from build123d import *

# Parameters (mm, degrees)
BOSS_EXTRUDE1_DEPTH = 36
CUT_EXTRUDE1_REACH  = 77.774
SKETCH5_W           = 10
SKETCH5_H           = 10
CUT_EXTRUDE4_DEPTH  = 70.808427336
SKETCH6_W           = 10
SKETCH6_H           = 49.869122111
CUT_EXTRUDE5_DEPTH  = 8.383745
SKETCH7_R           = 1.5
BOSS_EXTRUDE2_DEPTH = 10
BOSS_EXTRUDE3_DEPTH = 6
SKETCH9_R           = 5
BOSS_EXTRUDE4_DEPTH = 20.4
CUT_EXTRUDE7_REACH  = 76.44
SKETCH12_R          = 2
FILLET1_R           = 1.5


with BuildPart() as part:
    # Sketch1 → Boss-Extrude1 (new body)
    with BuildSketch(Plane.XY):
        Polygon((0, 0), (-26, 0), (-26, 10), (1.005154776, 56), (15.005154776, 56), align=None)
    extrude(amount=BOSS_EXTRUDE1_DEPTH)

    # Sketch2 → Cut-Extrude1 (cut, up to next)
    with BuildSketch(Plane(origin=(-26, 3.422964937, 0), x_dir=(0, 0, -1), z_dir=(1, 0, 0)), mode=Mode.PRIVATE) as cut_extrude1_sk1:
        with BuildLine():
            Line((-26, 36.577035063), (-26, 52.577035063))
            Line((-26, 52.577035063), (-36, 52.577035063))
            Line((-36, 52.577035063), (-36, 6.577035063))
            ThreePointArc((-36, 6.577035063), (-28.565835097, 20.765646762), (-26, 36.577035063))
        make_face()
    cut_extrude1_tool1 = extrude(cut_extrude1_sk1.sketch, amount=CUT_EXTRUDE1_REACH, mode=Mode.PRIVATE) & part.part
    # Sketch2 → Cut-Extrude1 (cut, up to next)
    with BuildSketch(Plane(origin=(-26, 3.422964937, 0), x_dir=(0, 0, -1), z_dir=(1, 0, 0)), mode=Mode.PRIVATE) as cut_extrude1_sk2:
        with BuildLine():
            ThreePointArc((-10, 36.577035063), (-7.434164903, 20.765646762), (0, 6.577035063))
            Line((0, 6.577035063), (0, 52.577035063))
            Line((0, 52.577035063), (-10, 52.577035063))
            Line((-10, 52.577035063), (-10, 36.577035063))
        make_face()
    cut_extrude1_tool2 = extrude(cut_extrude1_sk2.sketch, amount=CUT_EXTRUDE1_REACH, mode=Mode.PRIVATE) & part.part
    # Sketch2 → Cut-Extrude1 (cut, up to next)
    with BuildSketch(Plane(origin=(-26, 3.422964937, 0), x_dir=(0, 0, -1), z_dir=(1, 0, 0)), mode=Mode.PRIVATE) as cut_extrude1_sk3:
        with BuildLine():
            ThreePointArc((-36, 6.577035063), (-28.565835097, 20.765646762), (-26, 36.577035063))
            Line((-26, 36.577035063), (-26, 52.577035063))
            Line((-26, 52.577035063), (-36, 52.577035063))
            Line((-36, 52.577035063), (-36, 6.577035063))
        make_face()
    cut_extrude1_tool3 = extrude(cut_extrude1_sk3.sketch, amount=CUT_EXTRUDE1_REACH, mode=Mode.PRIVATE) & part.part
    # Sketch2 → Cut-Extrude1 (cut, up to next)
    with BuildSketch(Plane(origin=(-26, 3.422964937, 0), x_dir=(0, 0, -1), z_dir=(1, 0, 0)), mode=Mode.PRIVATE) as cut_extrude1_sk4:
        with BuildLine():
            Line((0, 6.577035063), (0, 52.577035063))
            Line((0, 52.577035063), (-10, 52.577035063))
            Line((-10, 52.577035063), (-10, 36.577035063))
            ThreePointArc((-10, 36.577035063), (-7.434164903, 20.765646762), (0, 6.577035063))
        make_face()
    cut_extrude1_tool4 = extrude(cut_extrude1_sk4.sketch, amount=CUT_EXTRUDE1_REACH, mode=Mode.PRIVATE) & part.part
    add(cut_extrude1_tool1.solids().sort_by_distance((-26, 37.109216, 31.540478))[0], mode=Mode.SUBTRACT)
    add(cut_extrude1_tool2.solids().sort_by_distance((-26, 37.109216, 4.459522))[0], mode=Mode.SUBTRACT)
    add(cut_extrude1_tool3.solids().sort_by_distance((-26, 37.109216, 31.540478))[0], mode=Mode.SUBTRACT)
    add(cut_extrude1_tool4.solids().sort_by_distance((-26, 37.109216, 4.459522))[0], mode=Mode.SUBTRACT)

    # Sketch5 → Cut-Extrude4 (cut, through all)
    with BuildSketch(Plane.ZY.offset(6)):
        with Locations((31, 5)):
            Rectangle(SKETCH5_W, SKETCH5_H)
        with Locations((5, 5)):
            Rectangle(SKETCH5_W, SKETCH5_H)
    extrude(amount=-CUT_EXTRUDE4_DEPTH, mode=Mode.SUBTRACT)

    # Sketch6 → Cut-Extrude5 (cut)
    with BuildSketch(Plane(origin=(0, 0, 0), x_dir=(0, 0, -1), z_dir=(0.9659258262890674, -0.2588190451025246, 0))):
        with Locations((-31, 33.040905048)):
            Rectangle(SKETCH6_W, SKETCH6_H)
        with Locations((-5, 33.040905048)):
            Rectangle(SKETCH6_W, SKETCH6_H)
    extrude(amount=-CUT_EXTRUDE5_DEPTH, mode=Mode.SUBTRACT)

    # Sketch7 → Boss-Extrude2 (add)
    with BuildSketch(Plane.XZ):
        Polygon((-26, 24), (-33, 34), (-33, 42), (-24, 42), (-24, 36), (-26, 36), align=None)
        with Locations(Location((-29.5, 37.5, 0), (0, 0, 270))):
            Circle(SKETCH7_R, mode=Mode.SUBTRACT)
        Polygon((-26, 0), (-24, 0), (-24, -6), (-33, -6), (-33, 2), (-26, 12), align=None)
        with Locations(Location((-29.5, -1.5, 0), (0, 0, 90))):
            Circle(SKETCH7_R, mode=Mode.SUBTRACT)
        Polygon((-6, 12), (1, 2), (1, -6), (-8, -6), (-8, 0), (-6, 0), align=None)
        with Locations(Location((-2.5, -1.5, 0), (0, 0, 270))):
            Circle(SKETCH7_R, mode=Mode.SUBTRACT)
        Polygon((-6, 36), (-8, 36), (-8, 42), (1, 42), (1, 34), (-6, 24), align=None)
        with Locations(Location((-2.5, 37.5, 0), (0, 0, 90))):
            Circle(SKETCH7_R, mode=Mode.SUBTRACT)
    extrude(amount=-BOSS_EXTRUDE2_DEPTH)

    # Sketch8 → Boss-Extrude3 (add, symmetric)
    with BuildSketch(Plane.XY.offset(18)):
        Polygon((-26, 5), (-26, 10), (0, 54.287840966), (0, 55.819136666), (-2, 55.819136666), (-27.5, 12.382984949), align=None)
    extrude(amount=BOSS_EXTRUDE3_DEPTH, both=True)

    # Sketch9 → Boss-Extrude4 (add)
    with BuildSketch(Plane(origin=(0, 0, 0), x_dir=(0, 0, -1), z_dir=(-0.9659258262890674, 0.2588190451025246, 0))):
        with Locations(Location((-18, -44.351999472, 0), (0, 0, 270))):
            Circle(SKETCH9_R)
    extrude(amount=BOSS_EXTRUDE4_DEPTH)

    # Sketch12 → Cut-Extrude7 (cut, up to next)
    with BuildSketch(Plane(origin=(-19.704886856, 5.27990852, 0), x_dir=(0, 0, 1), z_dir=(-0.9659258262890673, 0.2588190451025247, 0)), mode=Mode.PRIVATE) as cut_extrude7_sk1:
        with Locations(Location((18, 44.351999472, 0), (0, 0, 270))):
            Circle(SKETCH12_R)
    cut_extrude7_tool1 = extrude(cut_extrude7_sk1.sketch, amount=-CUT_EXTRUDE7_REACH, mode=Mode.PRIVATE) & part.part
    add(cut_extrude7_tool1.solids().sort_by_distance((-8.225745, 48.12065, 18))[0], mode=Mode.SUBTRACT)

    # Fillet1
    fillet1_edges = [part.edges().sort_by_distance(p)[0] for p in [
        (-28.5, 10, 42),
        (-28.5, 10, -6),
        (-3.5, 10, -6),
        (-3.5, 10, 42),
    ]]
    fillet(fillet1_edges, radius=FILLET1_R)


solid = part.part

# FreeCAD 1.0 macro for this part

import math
import FreeCAD as App
import Part
import Sketcher
Q = App.Units.Quantity


def edges_at(feature, points):
    """Names of the edges that pass closest to the given points."""
    edges = feature.Shape.Edges
    near = lambda p: min(range(len(edges)), key=lambda i: edges[i].distToShape(Part.Vertex(*p))[0])
    return sorted({f"Edge{near(p) + 1}" for p in points})

doc = App.newDocument("Part")
body = doc.addObject("PartDesign::Body", "Body")

# Sketch on XY plane
sketch1 = doc.addObject("Sketcher::SketchObject", "Sketch")
body.addObject(sketch1)
sketch1.AttachmentSupport = (doc.XY_Plane, [""])
sketch1.MapMode = "FlatFace"
sketch1.addGeometry([
    Part.LineSegment(App.Vector(-26, 0, 0), App.Vector(0, 0, 0)),  # 0
    Part.LineSegment(App.Vector(0, 0, 0), App.Vector(15, 56, 0)),  # 1
    Part.LineSegment(App.Vector(15, 56, 0), App.Vector(1, 56, 0)),  # 2
    Part.LineSegment(App.Vector(1, 56, 0), App.Vector(-26, 10, 0)),  # 3
    Part.LineSegment(App.Vector(-26, 10, 0), App.Vector(-26, 0, 0)),  # 4
], False)
sketch1.addConstraint([
    Sketcher.Constraint("Coincident", 0, 2, 1, 1),
    Sketcher.Constraint("Coincident", 1, 2, 2, 1),
    Sketcher.Constraint("Coincident", 2, 2, 3, 1),
    Sketcher.Constraint("Coincident", 3, 2, 4, 1),
    Sketcher.Constraint("Coincident", 4, 2, 0, 1),
    Sketcher.Constraint("Horizontal", 0),
    Sketcher.Constraint("Horizontal", 2),
    Sketcher.Constraint("Vertical", 4),
    Sketcher.Constraint("Coincident", 0, 2, -1, 1),
    Sketcher.Constraint("DistanceX", 0, 1, 0, 2, Q("26 mm")),
    Sketcher.Constraint("DistanceX", 2, 2, 2, 1, Q("14 mm")),
    Sketcher.Constraint("DistanceY", 4, 2, 4, 1, Q("10 mm")),
    Sketcher.Constraint("Angle", 1, Q("75 deg")),
    Sketcher.Constraint("DistanceY", -1, 1, 1, 2, Q("56 mm")),
])
pad1 = doc.addObject("PartDesign::Pad", "Pad")
body.addObject(pad1)
pad1.Profile = sketch1
pad1.Length = 36

# Sketch on YZ plane
sketch2 = doc.addObject("Sketcher::SketchObject", "Sketch001")
body.addObject(sketch2)
sketch2.AttachmentSupport = (doc.YZ_Plane, [""])
sketch2.MapMode = "FlatFace"
sketch2.AttachmentOffset = App.Placement(App.Vector(0, 0, -26), App.Rotation())
sketch2.addGeometry([
    Part.LineSegment(App.Vector(40, 26, 0), App.Vector(56, 26, 0)),
    Part.LineSegment(App.Vector(56, 26, 0), App.Vector(56, 36, 0)),
    Part.LineSegment(App.Vector(56, 36, 0), App.Vector(10, 36, 0)),
    Part.ArcOfCircle(Part.Circle(App.Vector(40, 76, 0), App.Vector(0, 0, 1), 50), math.radians(-127), math.radians(-90)),
], False)
sketch2.addConstraint([
    Sketcher.Constraint("Coincident", 0, 2, 1, 1),
    Sketcher.Constraint("Coincident", 1, 2, 2, 1),
    Sketcher.Constraint("Coincident", 2, 2, 3, 1),
    Sketcher.Constraint("Tangent", 3, 2, 0, 1),
    Sketcher.Constraint("Horizontal", 0),
    Sketcher.Constraint("Vertical", 1),
    Sketcher.Constraint("Horizontal", 2),
    Sketcher.Constraint("Radius", 3, Q("50 mm")),
    Sketcher.Constraint("DistanceX", 0, 1, 0, 2, Q("16 mm")),
    Sketcher.Constraint("DistanceX", 2, 2, 2, 1, Q("46 mm")),
    Sketcher.Constraint("DistanceX", -1, 1, 3, 3, Q("40 mm")),
    Sketcher.Constraint("DistanceY", -1, 1, 3, 3, Q("76 mm")),
])
pocket1 = doc.addObject("PartDesign::Pocket", "Pocket")
body.addObject(pocket1)
pocket1.Profile = sketch2
pocket1.Length = 41.005155
pocket1.Reversed = True

# Sketch on YZ plane
sketch3 = doc.addObject("Sketcher::SketchObject", "Sketch002")
body.addObject(sketch3)
sketch3.AttachmentSupport = (doc.YZ_Plane, [""])
sketch3.MapMode = "FlatFace"
sketch3.AttachmentOffset = App.Placement(App.Vector(0, 0, -26), App.Rotation())
sketch3.addGeometry([
    Part.ArcOfCircle(Part.Circle(App.Vector(40, -40, 0), App.Vector(0, 0, 1), 50), math.radians(90), math.radians(127)),
    Part.LineSegment(App.Vector(10, 0, 0), App.Vector(56, 0, 0)),
    Part.LineSegment(App.Vector(56, 0, 0), App.Vector(56, 10, 0)),
    Part.LineSegment(App.Vector(56, 10, 0), App.Vector(40, 10, 0)),
], False)
sketch3.addConstraint([
    Sketcher.Constraint("Coincident", 0, 2, 1, 1),
    Sketcher.Constraint("Coincident", 1, 2, 2, 1),
    Sketcher.Constraint("Coincident", 2, 2, 3, 1),
    Sketcher.Constraint("Tangent", 3, 2, 0, 1),
    Sketcher.Constraint("Horizontal", 1),
    Sketcher.Constraint("Vertical", 2),
    Sketcher.Constraint("Horizontal", 3),
    Sketcher.Constraint("PointOnObject", 0, 2, -1),
    Sketcher.Constraint("Radius", 0, Q("50 mm")),
    Sketcher.Constraint("DistanceX", 1, 1, 1, 2, Q("46 mm")),
    Sketcher.Constraint("DistanceX", 3, 2, 3, 1, Q("16 mm")),
    Sketcher.Constraint("DistanceX", -1, 1, 0, 3, Q("40 mm")),
])
pocket2 = doc.addObject("PartDesign::Pocket", "Pocket001")
body.addObject(pocket2)
pocket2.Profile = sketch3
pocket2.Length = 41.005155
pocket2.Reversed = True

# Sketch on YZ plane
sketch4 = doc.addObject("Sketcher::SketchObject", "Sketch003")
body.addObject(sketch4)
sketch4.AttachmentSupport = (doc.YZ_Plane, [""])
sketch4.MapMode = "FlatFace"
sketch4.AttachmentOffset = App.Placement(App.Vector(0, 0, -26), App.Rotation())
sketch4.addGeometry([
    Part.ArcOfCircle(Part.Circle(App.Vector(40, 76, 0), App.Vector(0, 0, 1), 50), math.radians(-127), math.radians(-90)),
    Part.LineSegment(App.Vector(40, 26, 0), App.Vector(56, 26, 0)),
    Part.LineSegment(App.Vector(56, 26, 0), App.Vector(56, 36, 0)),
    Part.LineSegment(App.Vector(56, 36, 0), App.Vector(10, 36, 0)),
], False)
sketch4.addConstraint([
    Sketcher.Constraint("Tangent", 0, 2, 1, 1),
    Sketcher.Constraint("Coincident", 1, 2, 2, 1),
    Sketcher.Constraint("Coincident", 2, 2, 3, 1),
    Sketcher.Constraint("Coincident", 3, 2, 0, 1),
    Sketcher.Constraint("Horizontal", 1),
    Sketcher.Constraint("Vertical", 2),
    Sketcher.Constraint("Horizontal", 3),
    Sketcher.Constraint("Radius", 0, Q("50 mm")),
    Sketcher.Constraint("DistanceX", 1, 1, 1, 2, Q("16 mm")),
    Sketcher.Constraint("DistanceX", 3, 2, 3, 1, Q("46 mm")),
    Sketcher.Constraint("DistanceX", -1, 1, 0, 3, Q("40 mm")),
    Sketcher.Constraint("DistanceY", -1, 1, 0, 3, Q("76 mm")),
])
pocket3 = doc.addObject("PartDesign::Pocket", "Pocket002")
body.addObject(pocket3)
pocket3.Profile = sketch4
pocket3.Length = 41.005155
pocket3.Reversed = True

# Sketch on YZ plane
sketch5 = doc.addObject("Sketcher::SketchObject", "Sketch004")
body.addObject(sketch5)
sketch5.AttachmentSupport = (doc.YZ_Plane, [""])
sketch5.MapMode = "FlatFace"
sketch5.AttachmentOffset = App.Placement(App.Vector(0, 0, -26), App.Rotation())
sketch5.addGeometry([
    Part.LineSegment(App.Vector(10, 0, 0), App.Vector(56, 0, 0)),
    Part.LineSegment(App.Vector(56, 0, 0), App.Vector(56, 10, 0)),
    Part.LineSegment(App.Vector(56, 10, 0), App.Vector(40, 10, 0)),
    Part.ArcOfCircle(Part.Circle(App.Vector(40, -40, 0), App.Vector(0, 0, 1), 50), math.radians(90), math.radians(127)),
], False)
sketch5.addConstraint([
    Sketcher.Constraint("Coincident", 0, 2, 1, 1),
    Sketcher.Constraint("Coincident", 1, 2, 2, 1),
    Sketcher.Constraint("Tangent", 2, 2, 3, 1),
    Sketcher.Constraint("Coincident", 3, 2, 0, 1),
    Sketcher.Constraint("Horizontal", 0),
    Sketcher.Constraint("Vertical", 1),
    Sketcher.Constraint("Horizontal", 2),
    Sketcher.Constraint("PointOnObject", 0, 2, -1),
    Sketcher.Constraint("Radius", 3, Q("50 mm")),
    Sketcher.Constraint("DistanceX", 0, 1, 0, 2, Q("46 mm")),
    Sketcher.Constraint("DistanceX", 2, 2, 2, 1, Q("16 mm")),
    Sketcher.Constraint("DistanceX", -1, 1, 3, 3, Q("40 mm")),
])
pocket4 = doc.addObject("PartDesign::Pocket", "Pocket003")
body.addObject(pocket4)
pocket4.Profile = sketch5
pocket4.Length = 41.005155
pocket4.Reversed = True

# Sketch on YZ plane
sketch6 = doc.addObject("Sketcher::SketchObject", "Sketch005")
body.addObject(sketch6)
sketch6.AttachmentSupport = (doc.YZ_Plane, [""])
sketch6.MapMode = "FlatFace"
sketch6.AttachmentOffset = App.Placement(App.Vector(0, 0, -6), App.Rotation())
sketch6.addGeometry([
    Part.LineSegment(App.Vector(10, 26, 0), App.Vector(0, 26, 0)),  # 0
    Part.LineSegment(App.Vector(0, 26, 0), App.Vector(0, 36, 0)),  # 1
    Part.LineSegment(App.Vector(0, 36, 0), App.Vector(10, 36, 0)),  # 2
    Part.LineSegment(App.Vector(10, 36, 0), App.Vector(10, 26, 0)),  # 3
    Part.LineSegment(App.Vector(10, 0, 0), App.Vector(0, 0, 0)),  # 4
    Part.LineSegment(App.Vector(0, 0, 0), App.Vector(0, 10, 0)),  # 5
    Part.LineSegment(App.Vector(0, 10, 0), App.Vector(10, 10, 0)),  # 6
    Part.LineSegment(App.Vector(10, 10, 0), App.Vector(10, 0, 0)),  # 7
], False)
sketch6.addConstraint([
    Sketcher.Constraint("Coincident", 0, 2, 1, 1),
    Sketcher.Constraint("Coincident", 1, 2, 2, 1),
    Sketcher.Constraint("Coincident", 2, 2, 3, 1),
    Sketcher.Constraint("Coincident", 3, 2, 0, 1),
    Sketcher.Constraint("Coincident", 4, 2, 5, 1),
    Sketcher.Constraint("Coincident", 5, 2, 6, 1),
    Sketcher.Constraint("Coincident", 6, 2, 7, 1),
    Sketcher.Constraint("Coincident", 7, 2, 4, 1),
    Sketcher.Constraint("Horizontal", 0),
    Sketcher.Constraint("Vertical", 1),
    Sketcher.Constraint("Horizontal", 2),
    Sketcher.Constraint("Vertical", 3),
    Sketcher.Constraint("Horizontal", 4),
    Sketcher.Constraint("Vertical", 5),
    Sketcher.Constraint("Horizontal", 6),
    Sketcher.Constraint("Vertical", 7),
    Sketcher.Constraint("Coincident", 4, 2, -1, 1),
    Sketcher.Constraint("PointOnObject", 0, 2, -2),
    Sketcher.Constraint("Vertical", 3, 2, 6, 2),
    Sketcher.Constraint("Equal", 6, 1),
    Sketcher.Constraint("Equal", 3, 5),
    Sketcher.Constraint("DistanceX", 0, 2, 0, 1, Q("10 mm")),
    Sketcher.Constraint("DistanceY", -1, 1, 0, 2, Q("26 mm")),
])
pocket5 = doc.addObject("PartDesign::Pocket", "Pocket004")
body.addObject(pocket5)
pocket5.Profile = sketch6
pocket5.Type = "ThroughAll"
pocket5.Reversed = True

# Sketch on an angled plane
sketch7 = doc.addObject("Sketcher::SketchObject", "Sketch006")
body.addObject(sketch7)
sketch7.Placement = App.Placement(App.Vector(0, 0, 0), App.Rotation(App.Vector(0, 0, -1), App.Vector(0.258819045, 0.965925826, 0), App.Vector(0.965925826, -0.258819045, 0), "ZXY"))
sketch7.addGeometry([
    Part.LineSegment(App.Vector(-36, 58, 0), App.Vector(-36, 8, 0)),  # 0
    Part.LineSegment(App.Vector(-36, 8, 0), App.Vector(-26, 8, 0)),  # 1
    Part.LineSegment(App.Vector(-26, 8, 0), App.Vector(-26, 58, 0)),  # 2
    Part.LineSegment(App.Vector(-26, 58, 0), App.Vector(-36, 58, 0)),  # 3
    Part.LineSegment(App.Vector(-10, 58, 0), App.Vector(-10, 8, 0)),  # 4
    Part.LineSegment(App.Vector(-10, 8, 0), App.Vector(0, 8, 0)),  # 5
    Part.LineSegment(App.Vector(0, 8, 0), App.Vector(0, 58, 0)),  # 6
    Part.LineSegment(App.Vector(0, 58, 0), App.Vector(-10, 58, 0)),  # 7
], False)
sketch7.addConstraint([
    Sketcher.Constraint("Coincident", 0, 2, 1, 1),
    Sketcher.Constraint("Coincident", 1, 2, 2, 1),
    Sketcher.Constraint("Coincident", 2, 2, 3, 1),
    Sketcher.Constraint("Coincident", 3, 2, 0, 1),
    Sketcher.Constraint("Coincident", 4, 2, 5, 1),
    Sketcher.Constraint("Coincident", 5, 2, 6, 1),
    Sketcher.Constraint("Coincident", 6, 2, 7, 1),
    Sketcher.Constraint("Coincident", 7, 2, 4, 1),
    Sketcher.Constraint("Vertical", 0),
    Sketcher.Constraint("Horizontal", 1),
    Sketcher.Constraint("Vertical", 2),
    Sketcher.Constraint("Horizontal", 3),
    Sketcher.Constraint("Vertical", 4),
    Sketcher.Constraint("Horizontal", 5),
    Sketcher.Constraint("Vertical", 6),
    Sketcher.Constraint("Horizontal", 7),
    Sketcher.Constraint("PointOnObject", 5, 2, -2),
    Sketcher.Constraint("Horizontal", 1, 2, 4, 2),
    Sketcher.Constraint("Horizontal", 3, 2, 6, 2),
    Sketcher.Constraint("Equal", 3, 5),
    Sketcher.Constraint("DistanceX", 1, 1, 1, 2, Q("10 mm")),
    Sketcher.Constraint("DistanceX", 0, 2, -1, 1, Q("36 mm")),
    Sketcher.Constraint("DistanceY", 0, 2, 0, 1, Q("49.869122 mm")),
    Sketcher.Constraint("DistanceY", -1, 1, 0, 2, Q("8.106344 mm")),
])
pocket6 = doc.addObject("PartDesign::Pocket", "Pocket005")
body.addObject(pocket6)
pocket6.Profile = sketch7
pocket6.Length = 8.383745

# Sketch on XZ plane
sketch8 = doc.addObject("Sketcher::SketchObject", "Sketch007")
body.addObject(sketch8)
sketch8.AttachmentSupport = (doc.XZ_Plane, [""])
sketch8.MapMode = "FlatFace"
sketch8.addGeometry([
    Part.LineSegment(App.Vector(-33, 34, 0), App.Vector(-26, 24, 0)),  # 0
    Part.LineSegment(App.Vector(-26, 24, 0), App.Vector(-26, 36, 0)),  # 1
    Part.LineSegment(App.Vector(-26, 36, 0), App.Vector(-24, 36, 0)),  # 2
    Part.LineSegment(App.Vector(-24, 36, 0), App.Vector(-24, 42, 0)),  # 3
    Part.LineSegment(App.Vector(-24, 42, 0), App.Vector(-33, 42, 0)),  # 4
    Part.LineSegment(App.Vector(-33, 42, 0), App.Vector(-33, 34, 0)),  # 5
    Part.Circle(App.Vector(-29.5, 37.5, 0), App.Vector(0, 0, 1), 1.5),  # 6
    Part.LineSegment(App.Vector(-24, 0, 0), App.Vector(-26, 0, 0)),  # 7
    Part.LineSegment(App.Vector(-26, 0, 0), App.Vector(-26, 12, 0)),  # 8
    Part.LineSegment(App.Vector(-26, 12, 0), App.Vector(-33, 2, 0)),  # 9
    Part.LineSegment(App.Vector(-33, 2, 0), App.Vector(-33, -6, 0)),  # 10
    Part.LineSegment(App.Vector(-33, -6, 0), App.Vector(-24, -6, 0)),  # 11
    Part.LineSegment(App.Vector(-24, -6, 0), App.Vector(-24, 0, 0)),  # 12
    Part.Circle(App.Vector(-29.5, -1.5, 0), App.Vector(0, 0, 1), 1.5),  # 13
    Part.LineSegment(App.Vector(1, 2, 0), App.Vector(-6, 12, 0)),  # 14
    Part.LineSegment(App.Vector(-6, 12, 0), App.Vector(-6, 0, 0)),  # 15
    Part.LineSegment(App.Vector(-6, 0, 0), App.Vector(-8, 0, 0)),  # 16
    Part.LineSegment(App.Vector(-8, 0, 0), App.Vector(-8, -6, 0)),  # 17
    Part.LineSegment(App.Vector(-8, -6, 0), App.Vector(1, -6, 0)),  # 18
    Part.LineSegment(App.Vector(1, -6, 0), App.Vector(1, 2, 0)),  # 19
    Part.Circle(App.Vector(-2.5, -1.5, 0), App.Vector(0, 0, 1), 1.5),  # 20
    Part.LineSegment(App.Vector(-8, 36, 0), App.Vector(-6, 36, 0)),  # 21
    Part.LineSegment(App.Vector(-6, 36, 0), App.Vector(-6, 24, 0)),  # 22
    Part.LineSegment(App.Vector(-6, 24, 0), App.Vector(1, 34, 0)),  # 23
    Part.LineSegment(App.Vector(1, 34, 0), App.Vector(1, 42, 0)),  # 24
    Part.LineSegment(App.Vector(1, 42, 0), App.Vector(-8, 42, 0)),  # 25
    Part.LineSegment(App.Vector(-8, 42, 0), App.Vector(-8, 36, 0)),  # 26
    Part.Circle(App.Vector(-2.5, 37.5, 0), App.Vector(0, 0, 1), 1.5),  # 27
], False)
sketch8.addConstraint([
    Sketcher.Constraint("Coincident", 0, 2, 1, 1),
    Sketcher.Constraint("Coincident", 1, 2, 2, 1),
    Sketcher.Constraint("Coincident", 2, 2, 3, 1),
    Sketcher.Constraint("Coincident", 3, 2, 4, 1),
    Sketcher.Constraint("Coincident", 4, 2, 5, 1),
    Sketcher.Constraint("Coincident", 5, 2, 0, 1),
    Sketcher.Constraint("Coincident", 7, 2, 8, 1),
    Sketcher.Constraint("Coincident", 8, 2, 9, 1),
    Sketcher.Constraint("Coincident", 9, 2, 10, 1),
    Sketcher.Constraint("Coincident", 10, 2, 11, 1),
    Sketcher.Constraint("Coincident", 11, 2, 12, 1),
    Sketcher.Constraint("Coincident", 12, 2, 7, 1),
    Sketcher.Constraint("Coincident", 14, 2, 15, 1),
    Sketcher.Constraint("Coincident", 15, 2, 16, 1),
    Sketcher.Constraint("Coincident", 16, 2, 17, 1),
    Sketcher.Constraint("Coincident", 17, 2, 18, 1),
    Sketcher.Constraint("Coincident", 18, 2, 19, 1),
    Sketcher.Constraint("Coincident", 19, 2, 14, 1),
    Sketcher.Constraint("Coincident", 21, 2, 22, 1),
    Sketcher.Constraint("Coincident", 22, 2, 23, 1),
    Sketcher.Constraint("Coincident", 23, 2, 24, 1),
    Sketcher.Constraint("Coincident", 24, 2, 25, 1),
    Sketcher.Constraint("Coincident", 25, 2, 26, 1),
    Sketcher.Constraint("Coincident", 26, 2, 21, 1),
    Sketcher.Constraint("Vertical", 1),
    Sketcher.Constraint("Horizontal", 2),
    Sketcher.Constraint("Vertical", 3),
    Sketcher.Constraint("Horizontal", 4),
    Sketcher.Constraint("Vertical", 5),
    Sketcher.Constraint("Horizontal", 7),
    Sketcher.Constraint("Vertical", 8),
    Sketcher.Constraint("Vertical", 10),
    Sketcher.Constraint("Horizontal", 11),
    Sketcher.Constraint("Vertical", 12),
    Sketcher.Constraint("Vertical", 15),
    Sketcher.Constraint("Horizontal", 16),
    Sketcher.Constraint("Vertical", 17),
    Sketcher.Constraint("Horizontal", 18),
    Sketcher.Constraint("Vertical", 19),
    Sketcher.Constraint("Horizontal", 21),
    Sketcher.Constraint("Vertical", 22),
    Sketcher.Constraint("Vertical", 24),
    Sketcher.Constraint("Horizontal", 25),
    Sketcher.Constraint("Vertical", 26),
    Sketcher.Constraint("Equal", 6, 13),
    Sketcher.Constraint("Equal", 13, 20),
    Sketcher.Constraint("Equal", 20, 27),
    Sketcher.Constraint("PointOnObject", 7, 2, -1),
    Sketcher.Constraint("PointOnObject", 15, 2, -1),
    Sketcher.Constraint("Parallel", 0, 14),
    Sketcher.Constraint("Parallel", 9, 23),
    Sketcher.Constraint("Horizontal", 13, 3, 20, 3),
    Sketcher.Constraint("Horizontal", 6, 3, 27, 3),
    Sketcher.Constraint("Horizontal", 8, 2, 14, 2),
    Sketcher.Constraint("Horizontal", 11, 2, 17, 2),
    Sketcher.Constraint("Horizontal", 9, 2, 19, 2),
    Sketcher.Constraint("Horizontal", 2, 2, 21, 2),
    Sketcher.Constraint("Horizontal", 0, 2, 22, 2),
    Sketcher.Constraint("Horizontal", 5, 2, 23, 2),
    Sketcher.Constraint("Horizontal", 4, 2, 24, 2),
    Sketcher.Constraint("Vertical", 6, 3, 13, 3),
    Sketcher.Constraint("Vertical", 20, 3, 27, 3),
    Sketcher.Constraint("Vertical", 1, 2, 7, 2),
    Sketcher.Constraint("Vertical", 5, 2, 9, 2),
    Sketcher.Constraint("Vertical", 3, 2, 11, 2),
    Sketcher.Constraint("Vertical", 15, 2, 21, 2),
    Sketcher.Constraint("Vertical", 19, 2, 23, 2),
    Sketcher.Constraint("Vertical", 17, 2, 25, 2),
    Sketcher.Constraint("Equal", 7, 16),
    Sketcher.Constraint("Equal", 1, 8),
    Sketcher.Constraint("Equal", 5, 10),
    Sketcher.Constraint("Diameter", 6, Q("3 mm")),
    Sketcher.Constraint("DistanceX", 2, 1, 2, 2, Q("2 mm")),
    Sketcher.Constraint("DistanceX", 4, 2, 4, 1, Q("9 mm")),
    Sketcher.Constraint("DistanceY", 1, 1, 1, 2, Q("12 mm")),
    Sketcher.Constraint("DistanceY", 3, 1, 3, 2, Q("6 mm")),
    Sketcher.Constraint("DistanceY", 5, 2, 5, 1, Q("8 mm")),
    Sketcher.Constraint("DistanceX", 0, 2, -1, 1, Q("26 mm")),
    Sketcher.Constraint("DistanceY", -1, 1, 0, 2, Q("24 mm")),
    Sketcher.Constraint("DistanceX", 14, 2, -1, 1, Q("6 mm")),
    Sketcher.Constraint("DistanceY", 13, 3, 6, 3, Q("39 mm")),
    Sketcher.Constraint("DistanceX", 13, 3, 20, 3, Q("27 mm")),
    Sketcher.Constraint("DistanceX", 6, 3, -1, 1, Q("29.5 mm")),
    Sketcher.Constraint("DistanceY", -1, 1, 6, 3, Q("37.5 mm")),
])
pad2 = doc.addObject("PartDesign::Pad", "Pad001")
body.addObject(pad2)
pad2.Profile = sketch8
pad2.Length = 10
pad2.Reversed = True

# Sketch on XY plane
sketch9 = doc.addObject("Sketcher::SketchObject", "Sketch008")
body.addObject(sketch9)
sketch9.AttachmentSupport = (doc.XY_Plane, [""])
sketch9.MapMode = "FlatFace"
sketch9.AttachmentOffset = App.Placement(App.Vector(0, 0, 18), App.Rotation())
sketch9.addGeometry([
    Part.LineSegment(App.Vector(-26, 5, 0), App.Vector(-26, 10, 0)),  # 0
    Part.LineSegment(App.Vector(-26, 10, 0), App.Vector(0, 54.3, 0)),  # 1
    Part.LineSegment(App.Vector(0, 54.3, 0), App.Vector(0, 55.8, 0)),  # 2
    Part.LineSegment(App.Vector(0, 55.8, 0), App.Vector(-2, 55.8, 0)),  # 3
    Part.LineSegment(App.Vector(-2, 55.8, 0), App.Vector(-27.5, 12.4, 0)),  # 4
    Part.LineSegment(App.Vector(-27.5, 12.4, 0), App.Vector(-26, 5, 0)),  # 5
], False)
sketch9.addConstraint([
    Sketcher.Constraint("Coincident", 0, 2, 1, 1),
    Sketcher.Constraint("Coincident", 1, 2, 2, 1),
    Sketcher.Constraint("Coincident", 2, 2, 3, 1),
    Sketcher.Constraint("Coincident", 3, 2, 4, 1),
    Sketcher.Constraint("Coincident", 4, 2, 5, 1),
    Sketcher.Constraint("Coincident", 5, 2, 0, 1),
    Sketcher.Constraint("Vertical", 0),
    Sketcher.Constraint("Vertical", 2),
    Sketcher.Constraint("Horizontal", 3),
    Sketcher.Constraint("PointOnObject", 1, 2, -2),
    Sketcher.Constraint("Parallel", 1, 4),
    Sketcher.Constraint("DistanceX", 3, 2, 3, 1, Q("2 mm")),
    Sketcher.Constraint("DistanceY", 0, 1, 0, 2, Q("5 mm")),
    Sketcher.Constraint("DistanceX", 0, 2, -1, 1, Q("26 mm")),
    Sketcher.Constraint("DistanceY", -1, 1, 0, 2, Q("10 mm")),
    Sketcher.Constraint("DistanceX", 4, 2, -1, 1, Q("27.5 mm")),
    Sketcher.Constraint("Distance", 1, Q("51.355748 mm")),
    Sketcher.Constraint("Distance", 5, Q("7.533822 mm")),
])
pad3 = doc.addObject("PartDesign::Pad", "Pad002")
body.addObject(pad3)
pad3.Profile = sketch9
pad3.Length = 12
pad3.Midplane = True

# Sketch on an angled plane
sketch10 = doc.addObject("Sketcher::SketchObject", "Sketch009")
body.addObject(sketch10)
sketch10.Placement = App.Placement(App.Vector(0, 0, 0), App.Rotation(App.Vector(0, 0, -1), App.Vector(-0.258819045, -0.965925826, 0), App.Vector(-0.965925826, 0.258819045, 0), "ZXY"))
sketch10.addGeometry(Part.Circle(App.Vector(-18, -44, 0), App.Vector(0, 0, 1), 5), False)
sketch10.addConstraint([
    Sketcher.Constraint("Diameter", 0, Q("10 mm")),
    Sketcher.Constraint("DistanceX", 0, 3, -1, 1, Q("18 mm")),
    Sketcher.Constraint("DistanceY", 0, 3, -1, 1, Q("44.351999 mm")),
])
pad4 = doc.addObject("PartDesign::Pad", "Pad003")
body.addObject(pad4)
pad4.Profile = sketch10
pad4.Length = 20.4

# Sketch on an angled plane
sketch11 = doc.addObject("Sketcher::SketchObject", "Sketch010")
body.addObject(sketch11)
sketch11.Placement = App.Placement(App.Vector(-19.704887, 5.279909, 0), App.Rotation(App.Vector(0, 0, 1), App.Vector(0.258819045, 0.965925826, 0), App.Vector(-0.965925826, 0.258819045, 0), "ZXY"))
sketch11.addGeometry(Part.Circle(App.Vector(18, 44.4, 0), App.Vector(0, 0, 1), 2), False)
sketch11.addConstraint([
    Sketcher.Constraint("Diameter", 0, Q("4 mm")),
    Sketcher.Constraint("DistanceX", -1, 1, 0, 3, Q("18 mm")),
    Sketcher.Constraint("DistanceY", -1, 1, 0, 3, Q("44.351999 mm")),
])
pocket7 = doc.addObject("PartDesign::Pocket", "Pocket006")
body.addObject(pocket7)
pocket7.Profile = sketch11
pocket7.Type = "UpToFirst"
doc.recompute()

fillet = doc.addObject("PartDesign::Fillet", "Fillet")
body.addObject(fillet)
fillet.Base = (pocket7, edges_at(pocket7, [
    (-28.5, 10, 42),
    (-28.5, 10, -6),
    (-3.5, 10, -6),
    (-3.5, 10, 42),
]))
fillet.Radius = 1.5

doc.recompute()
